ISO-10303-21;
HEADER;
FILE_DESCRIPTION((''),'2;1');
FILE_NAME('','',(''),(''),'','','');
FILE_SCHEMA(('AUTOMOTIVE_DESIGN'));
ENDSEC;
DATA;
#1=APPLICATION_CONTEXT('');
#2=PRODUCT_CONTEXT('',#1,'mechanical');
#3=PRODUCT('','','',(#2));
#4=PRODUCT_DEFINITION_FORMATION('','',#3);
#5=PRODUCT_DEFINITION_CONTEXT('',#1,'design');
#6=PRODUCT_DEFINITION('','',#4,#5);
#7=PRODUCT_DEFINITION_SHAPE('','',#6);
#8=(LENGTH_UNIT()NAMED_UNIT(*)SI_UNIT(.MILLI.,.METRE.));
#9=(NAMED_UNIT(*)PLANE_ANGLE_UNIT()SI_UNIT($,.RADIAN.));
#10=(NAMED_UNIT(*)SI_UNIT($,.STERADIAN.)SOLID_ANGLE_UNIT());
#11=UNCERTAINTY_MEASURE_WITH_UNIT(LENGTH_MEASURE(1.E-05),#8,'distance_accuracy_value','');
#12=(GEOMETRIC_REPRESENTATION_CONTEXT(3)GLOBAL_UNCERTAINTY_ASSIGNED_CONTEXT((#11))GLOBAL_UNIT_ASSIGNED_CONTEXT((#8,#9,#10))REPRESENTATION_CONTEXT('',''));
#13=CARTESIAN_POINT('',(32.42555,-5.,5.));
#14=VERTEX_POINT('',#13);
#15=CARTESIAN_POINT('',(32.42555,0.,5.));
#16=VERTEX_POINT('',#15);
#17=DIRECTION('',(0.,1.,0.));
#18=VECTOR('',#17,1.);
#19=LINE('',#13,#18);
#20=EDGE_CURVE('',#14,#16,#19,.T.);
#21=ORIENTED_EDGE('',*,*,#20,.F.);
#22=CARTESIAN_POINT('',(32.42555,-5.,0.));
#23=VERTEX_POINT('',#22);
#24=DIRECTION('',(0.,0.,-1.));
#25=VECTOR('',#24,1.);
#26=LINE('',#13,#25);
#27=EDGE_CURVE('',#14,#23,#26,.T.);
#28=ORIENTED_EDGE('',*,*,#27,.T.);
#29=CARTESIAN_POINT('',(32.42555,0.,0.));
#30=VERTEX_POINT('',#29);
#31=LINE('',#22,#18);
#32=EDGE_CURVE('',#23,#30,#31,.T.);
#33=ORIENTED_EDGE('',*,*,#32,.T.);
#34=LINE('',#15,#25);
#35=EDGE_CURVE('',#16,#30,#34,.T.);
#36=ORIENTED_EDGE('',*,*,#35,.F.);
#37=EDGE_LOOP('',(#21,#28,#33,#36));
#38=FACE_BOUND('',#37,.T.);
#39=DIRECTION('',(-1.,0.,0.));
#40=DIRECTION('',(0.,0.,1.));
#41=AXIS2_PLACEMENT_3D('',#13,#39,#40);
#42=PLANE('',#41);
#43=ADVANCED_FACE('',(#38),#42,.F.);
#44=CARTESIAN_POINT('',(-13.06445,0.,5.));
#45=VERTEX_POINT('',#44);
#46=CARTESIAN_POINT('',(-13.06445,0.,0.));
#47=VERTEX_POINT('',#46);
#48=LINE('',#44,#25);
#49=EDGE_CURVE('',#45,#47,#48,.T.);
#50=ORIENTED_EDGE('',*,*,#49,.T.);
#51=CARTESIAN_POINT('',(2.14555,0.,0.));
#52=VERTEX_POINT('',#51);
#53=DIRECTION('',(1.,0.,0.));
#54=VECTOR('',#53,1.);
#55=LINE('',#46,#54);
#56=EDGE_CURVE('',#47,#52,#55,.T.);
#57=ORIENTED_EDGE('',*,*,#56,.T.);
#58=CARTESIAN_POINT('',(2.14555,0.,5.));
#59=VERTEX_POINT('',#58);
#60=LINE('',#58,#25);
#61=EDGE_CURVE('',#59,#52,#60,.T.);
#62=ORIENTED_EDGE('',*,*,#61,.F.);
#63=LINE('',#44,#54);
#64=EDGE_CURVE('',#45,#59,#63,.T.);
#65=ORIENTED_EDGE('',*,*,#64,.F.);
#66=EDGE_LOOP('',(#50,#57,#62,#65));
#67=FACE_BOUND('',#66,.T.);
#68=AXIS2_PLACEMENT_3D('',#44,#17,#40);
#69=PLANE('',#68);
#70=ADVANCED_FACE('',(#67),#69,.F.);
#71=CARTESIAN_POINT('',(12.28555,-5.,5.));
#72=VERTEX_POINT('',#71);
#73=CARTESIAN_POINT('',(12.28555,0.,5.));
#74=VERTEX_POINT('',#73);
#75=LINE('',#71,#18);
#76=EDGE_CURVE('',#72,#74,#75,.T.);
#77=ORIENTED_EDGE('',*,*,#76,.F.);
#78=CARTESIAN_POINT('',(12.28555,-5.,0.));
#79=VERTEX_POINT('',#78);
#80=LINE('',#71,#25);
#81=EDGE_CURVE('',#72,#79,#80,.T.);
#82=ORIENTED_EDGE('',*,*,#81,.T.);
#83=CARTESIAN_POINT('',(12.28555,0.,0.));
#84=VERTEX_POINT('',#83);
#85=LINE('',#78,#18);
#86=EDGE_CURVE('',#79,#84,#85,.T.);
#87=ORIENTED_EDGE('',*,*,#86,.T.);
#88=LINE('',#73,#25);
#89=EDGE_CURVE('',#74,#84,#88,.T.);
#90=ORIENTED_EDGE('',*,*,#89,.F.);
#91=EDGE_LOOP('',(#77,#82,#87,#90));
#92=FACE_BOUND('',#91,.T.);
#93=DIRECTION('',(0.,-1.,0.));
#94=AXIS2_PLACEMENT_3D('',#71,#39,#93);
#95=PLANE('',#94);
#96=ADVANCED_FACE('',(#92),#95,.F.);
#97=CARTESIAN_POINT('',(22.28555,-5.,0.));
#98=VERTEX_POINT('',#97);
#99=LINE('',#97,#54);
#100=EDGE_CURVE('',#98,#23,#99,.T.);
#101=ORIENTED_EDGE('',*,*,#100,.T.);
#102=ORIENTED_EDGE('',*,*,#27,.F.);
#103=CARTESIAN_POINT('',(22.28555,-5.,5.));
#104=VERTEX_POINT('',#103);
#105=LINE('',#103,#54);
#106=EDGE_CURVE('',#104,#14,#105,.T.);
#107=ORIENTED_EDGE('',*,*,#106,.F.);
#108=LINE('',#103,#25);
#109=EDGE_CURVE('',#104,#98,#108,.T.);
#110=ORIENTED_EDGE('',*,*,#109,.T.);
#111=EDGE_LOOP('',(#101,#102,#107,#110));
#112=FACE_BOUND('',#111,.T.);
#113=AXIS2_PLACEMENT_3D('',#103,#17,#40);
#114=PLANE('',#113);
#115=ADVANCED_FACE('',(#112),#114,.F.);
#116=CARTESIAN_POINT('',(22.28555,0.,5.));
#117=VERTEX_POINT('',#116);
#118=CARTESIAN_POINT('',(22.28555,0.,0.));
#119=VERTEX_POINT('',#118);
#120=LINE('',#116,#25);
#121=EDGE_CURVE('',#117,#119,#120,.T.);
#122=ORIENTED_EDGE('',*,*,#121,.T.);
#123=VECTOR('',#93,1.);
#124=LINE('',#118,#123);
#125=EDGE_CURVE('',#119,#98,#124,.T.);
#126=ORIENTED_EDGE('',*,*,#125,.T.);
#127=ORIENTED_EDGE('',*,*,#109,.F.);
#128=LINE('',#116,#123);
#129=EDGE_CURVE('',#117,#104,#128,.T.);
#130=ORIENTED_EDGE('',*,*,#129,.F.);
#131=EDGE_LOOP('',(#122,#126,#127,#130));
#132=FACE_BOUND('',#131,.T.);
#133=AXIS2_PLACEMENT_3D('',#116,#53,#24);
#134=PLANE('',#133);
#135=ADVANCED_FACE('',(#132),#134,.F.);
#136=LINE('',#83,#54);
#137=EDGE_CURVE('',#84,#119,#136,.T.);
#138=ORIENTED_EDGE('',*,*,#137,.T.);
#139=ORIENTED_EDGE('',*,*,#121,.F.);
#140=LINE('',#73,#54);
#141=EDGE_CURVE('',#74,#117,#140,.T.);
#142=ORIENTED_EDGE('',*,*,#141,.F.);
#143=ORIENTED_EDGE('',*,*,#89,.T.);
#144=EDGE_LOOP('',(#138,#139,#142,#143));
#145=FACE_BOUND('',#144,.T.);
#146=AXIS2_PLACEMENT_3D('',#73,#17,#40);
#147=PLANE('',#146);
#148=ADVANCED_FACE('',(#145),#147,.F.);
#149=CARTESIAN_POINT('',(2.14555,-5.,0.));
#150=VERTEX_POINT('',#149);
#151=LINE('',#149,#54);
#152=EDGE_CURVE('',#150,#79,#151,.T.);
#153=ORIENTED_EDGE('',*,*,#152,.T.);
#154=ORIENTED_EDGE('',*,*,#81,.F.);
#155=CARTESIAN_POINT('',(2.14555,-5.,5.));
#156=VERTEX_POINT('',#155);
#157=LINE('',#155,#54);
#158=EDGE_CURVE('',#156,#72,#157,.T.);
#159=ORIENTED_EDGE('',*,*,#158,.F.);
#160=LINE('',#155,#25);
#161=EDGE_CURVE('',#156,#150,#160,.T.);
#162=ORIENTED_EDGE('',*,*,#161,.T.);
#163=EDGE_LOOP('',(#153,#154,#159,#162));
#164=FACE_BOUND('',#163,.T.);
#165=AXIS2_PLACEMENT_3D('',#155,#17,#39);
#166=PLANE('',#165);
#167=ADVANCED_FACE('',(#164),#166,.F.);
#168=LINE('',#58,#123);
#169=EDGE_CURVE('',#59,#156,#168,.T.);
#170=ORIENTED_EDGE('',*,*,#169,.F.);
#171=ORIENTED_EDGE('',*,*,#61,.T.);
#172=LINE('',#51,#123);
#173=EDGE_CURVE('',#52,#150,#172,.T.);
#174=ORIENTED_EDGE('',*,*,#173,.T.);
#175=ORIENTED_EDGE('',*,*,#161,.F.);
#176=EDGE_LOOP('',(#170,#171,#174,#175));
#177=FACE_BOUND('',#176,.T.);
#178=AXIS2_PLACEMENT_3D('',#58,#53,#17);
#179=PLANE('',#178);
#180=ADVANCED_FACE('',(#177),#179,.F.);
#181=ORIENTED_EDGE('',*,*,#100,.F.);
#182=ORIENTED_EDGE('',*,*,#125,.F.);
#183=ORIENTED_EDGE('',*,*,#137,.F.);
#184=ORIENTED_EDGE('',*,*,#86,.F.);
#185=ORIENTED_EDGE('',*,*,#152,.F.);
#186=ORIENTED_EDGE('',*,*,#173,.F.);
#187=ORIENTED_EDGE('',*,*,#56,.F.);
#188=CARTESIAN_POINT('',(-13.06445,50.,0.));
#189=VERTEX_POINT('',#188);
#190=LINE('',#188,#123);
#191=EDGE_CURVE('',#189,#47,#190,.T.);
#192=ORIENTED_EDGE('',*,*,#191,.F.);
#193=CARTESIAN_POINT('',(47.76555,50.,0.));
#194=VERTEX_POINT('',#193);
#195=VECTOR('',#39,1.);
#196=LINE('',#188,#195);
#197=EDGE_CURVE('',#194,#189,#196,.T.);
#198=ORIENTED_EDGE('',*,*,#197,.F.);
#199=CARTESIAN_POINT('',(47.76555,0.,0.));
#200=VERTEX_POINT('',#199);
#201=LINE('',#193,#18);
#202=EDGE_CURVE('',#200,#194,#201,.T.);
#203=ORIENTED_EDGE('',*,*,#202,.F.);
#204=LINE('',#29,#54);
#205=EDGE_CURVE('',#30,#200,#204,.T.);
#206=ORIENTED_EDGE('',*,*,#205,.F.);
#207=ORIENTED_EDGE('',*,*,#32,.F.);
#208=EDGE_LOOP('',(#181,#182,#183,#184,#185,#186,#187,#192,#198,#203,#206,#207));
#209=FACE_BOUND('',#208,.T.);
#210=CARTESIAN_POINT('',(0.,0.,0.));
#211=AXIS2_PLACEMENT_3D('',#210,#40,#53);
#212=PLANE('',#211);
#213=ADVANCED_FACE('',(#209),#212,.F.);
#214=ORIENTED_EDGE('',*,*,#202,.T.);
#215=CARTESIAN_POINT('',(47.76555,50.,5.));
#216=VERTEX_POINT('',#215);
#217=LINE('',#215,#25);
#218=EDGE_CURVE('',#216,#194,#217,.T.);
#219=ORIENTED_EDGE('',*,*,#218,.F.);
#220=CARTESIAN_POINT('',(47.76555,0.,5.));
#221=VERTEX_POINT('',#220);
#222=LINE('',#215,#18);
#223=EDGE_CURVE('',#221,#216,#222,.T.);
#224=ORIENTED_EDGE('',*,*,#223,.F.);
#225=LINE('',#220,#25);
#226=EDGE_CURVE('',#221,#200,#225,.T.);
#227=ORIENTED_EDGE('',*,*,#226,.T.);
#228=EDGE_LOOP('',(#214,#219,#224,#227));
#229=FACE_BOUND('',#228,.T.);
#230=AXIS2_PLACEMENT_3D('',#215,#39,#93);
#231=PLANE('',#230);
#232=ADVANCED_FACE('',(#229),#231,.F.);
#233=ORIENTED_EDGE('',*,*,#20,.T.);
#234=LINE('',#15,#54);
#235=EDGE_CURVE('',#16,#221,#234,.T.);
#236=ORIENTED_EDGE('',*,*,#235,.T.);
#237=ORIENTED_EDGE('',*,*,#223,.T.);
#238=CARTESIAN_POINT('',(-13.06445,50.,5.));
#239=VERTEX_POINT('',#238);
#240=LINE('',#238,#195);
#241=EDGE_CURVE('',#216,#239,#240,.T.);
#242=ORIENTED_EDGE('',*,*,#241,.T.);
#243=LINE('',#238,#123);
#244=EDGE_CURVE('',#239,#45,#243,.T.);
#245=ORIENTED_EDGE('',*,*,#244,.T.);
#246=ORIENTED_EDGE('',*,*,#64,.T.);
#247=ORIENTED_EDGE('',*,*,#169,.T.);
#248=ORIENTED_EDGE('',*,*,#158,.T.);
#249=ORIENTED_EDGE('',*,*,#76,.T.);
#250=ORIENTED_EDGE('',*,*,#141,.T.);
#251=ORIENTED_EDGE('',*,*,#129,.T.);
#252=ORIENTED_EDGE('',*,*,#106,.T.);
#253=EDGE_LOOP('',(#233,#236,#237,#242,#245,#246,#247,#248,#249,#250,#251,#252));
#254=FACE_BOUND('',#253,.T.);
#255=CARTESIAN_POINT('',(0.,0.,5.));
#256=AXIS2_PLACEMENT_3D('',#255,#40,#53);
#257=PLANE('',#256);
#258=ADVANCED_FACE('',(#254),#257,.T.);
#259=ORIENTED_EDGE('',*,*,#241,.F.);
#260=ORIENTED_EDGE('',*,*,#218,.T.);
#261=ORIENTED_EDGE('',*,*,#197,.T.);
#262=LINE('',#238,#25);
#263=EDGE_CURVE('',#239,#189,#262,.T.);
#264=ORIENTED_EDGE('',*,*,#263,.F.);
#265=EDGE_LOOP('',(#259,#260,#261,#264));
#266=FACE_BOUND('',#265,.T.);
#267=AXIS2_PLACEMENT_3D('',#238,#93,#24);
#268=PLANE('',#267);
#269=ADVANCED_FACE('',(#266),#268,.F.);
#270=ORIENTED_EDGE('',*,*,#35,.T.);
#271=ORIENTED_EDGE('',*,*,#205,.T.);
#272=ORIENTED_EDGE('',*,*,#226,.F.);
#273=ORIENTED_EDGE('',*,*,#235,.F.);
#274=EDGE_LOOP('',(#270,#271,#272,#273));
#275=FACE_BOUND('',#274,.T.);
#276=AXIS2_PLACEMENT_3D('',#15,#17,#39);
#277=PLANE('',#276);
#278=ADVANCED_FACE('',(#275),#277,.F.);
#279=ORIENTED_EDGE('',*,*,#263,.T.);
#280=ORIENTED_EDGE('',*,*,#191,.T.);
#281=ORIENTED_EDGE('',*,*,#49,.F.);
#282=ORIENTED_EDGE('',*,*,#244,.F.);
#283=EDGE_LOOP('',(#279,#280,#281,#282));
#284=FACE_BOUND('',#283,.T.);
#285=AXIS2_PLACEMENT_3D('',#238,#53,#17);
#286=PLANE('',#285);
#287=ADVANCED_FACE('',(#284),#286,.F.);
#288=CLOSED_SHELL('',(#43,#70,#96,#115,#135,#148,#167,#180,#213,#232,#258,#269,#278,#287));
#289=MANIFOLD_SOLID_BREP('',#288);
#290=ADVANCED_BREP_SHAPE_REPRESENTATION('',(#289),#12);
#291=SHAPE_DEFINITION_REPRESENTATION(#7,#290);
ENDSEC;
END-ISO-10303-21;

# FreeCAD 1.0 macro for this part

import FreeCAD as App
import Part
import Sketcher

V = App.Vector
Q = App.Units.Quantity


def add_polygon(sketch, points):
    """Adds a closed chain of lines whose ends are joined by coincident constraints."""
    first, n = sketch.GeometryCount, len(points)
    for a, b in zip(points, points[1:] + points[:1]):
        sketch.addGeometry(Part.LineSegment(App.Vector(*a, 0), App.Vector(*b, 0)), False)
    for i in range(n):
        sketch.addConstraint(Sketcher.Constraint("Coincident", first + i, 2, first + (i + 1) % n, 1))

doc = App.newDocument("Part")
body = doc.addObject("PartDesign::Body", "Body")

sketch1 = body.newObject("Sketcher::SketchObject", "Sketch")
sketch1.AttachmentSupport = (doc.getObject("XY_Plane"), [""])
sketch1.MapMode = "FlatFace"
add_polygon(sketch1, [(-13.06445, 0), (2.14555, 0), (2.14555, -5), (12.28555, -5), (12.28555, 0), (22.28555, 0), (22.28555, -5), (32.42555, -5), (32.42555, 0), (47.76555, 0), (47.76555, 50), (-13.06445, 50)])
sketch1.addConstraint([
    Sketcher.Constraint("Horizontal", 0),
    Sketcher.Constraint("Vertical", 1),
    Sketcher.Constraint("Horizontal", 2),
    Sketcher.Constraint("Vertical", 3),
    Sketcher.Constraint("Horizontal", 4),
    Sketcher.Constraint("Vertical", 5),
    Sketcher.Constraint("Horizontal", 6),
    Sketcher.Constraint("Vertical", 7),
    Sketcher.Constraint("Horizontal", 8),
    Sketcher.Constraint("Vertical", 9),
    Sketcher.Constraint("Horizontal", 10),
    Sketcher.Constraint("Vertical", 11),
    Sketcher.Constraint("PointOnObject", 0, 2, -1),
    Sketcher.Constraint("PointOnObject", 3, 2, -1),
    Sketcher.Constraint("PointOnObject", 7, 2, -1),
    Sketcher.Constraint("Horizontal", 2, 2, 5, 2),
    Sketcher.Constraint("Equal", 2, 6),
    Sketcher.Constraint("DistanceX", 4, 1, 4, 2, Q("10 mm")),
    Sketcher.Constraint("DistanceY", 1, 2, 1, 1, Q("5 mm")),
    Sketcher.Constraint("DistanceY", 9, 1, 9, 2, Q("50 mm")),
    Sketcher.Constraint("DistanceX", 0, 1, 0, 2, Q("15.21 mm")),
    Sketcher.Constraint("DistanceX", 2, 1, 2, 2, Q("10.14 mm")),
    Sketcher.Constraint("DistanceX", 8, 1, 8, 2, Q("15.34 mm")),
    Sketcher.Constraint("DistanceX", -1, 1, 0, 2, Q("2.14555 mm")),
])
pad1 = body.newObject("PartDesign::Pad", "Pad")
pad1.Profile = sketch1
pad1.Length = 5

doc.recompute()
